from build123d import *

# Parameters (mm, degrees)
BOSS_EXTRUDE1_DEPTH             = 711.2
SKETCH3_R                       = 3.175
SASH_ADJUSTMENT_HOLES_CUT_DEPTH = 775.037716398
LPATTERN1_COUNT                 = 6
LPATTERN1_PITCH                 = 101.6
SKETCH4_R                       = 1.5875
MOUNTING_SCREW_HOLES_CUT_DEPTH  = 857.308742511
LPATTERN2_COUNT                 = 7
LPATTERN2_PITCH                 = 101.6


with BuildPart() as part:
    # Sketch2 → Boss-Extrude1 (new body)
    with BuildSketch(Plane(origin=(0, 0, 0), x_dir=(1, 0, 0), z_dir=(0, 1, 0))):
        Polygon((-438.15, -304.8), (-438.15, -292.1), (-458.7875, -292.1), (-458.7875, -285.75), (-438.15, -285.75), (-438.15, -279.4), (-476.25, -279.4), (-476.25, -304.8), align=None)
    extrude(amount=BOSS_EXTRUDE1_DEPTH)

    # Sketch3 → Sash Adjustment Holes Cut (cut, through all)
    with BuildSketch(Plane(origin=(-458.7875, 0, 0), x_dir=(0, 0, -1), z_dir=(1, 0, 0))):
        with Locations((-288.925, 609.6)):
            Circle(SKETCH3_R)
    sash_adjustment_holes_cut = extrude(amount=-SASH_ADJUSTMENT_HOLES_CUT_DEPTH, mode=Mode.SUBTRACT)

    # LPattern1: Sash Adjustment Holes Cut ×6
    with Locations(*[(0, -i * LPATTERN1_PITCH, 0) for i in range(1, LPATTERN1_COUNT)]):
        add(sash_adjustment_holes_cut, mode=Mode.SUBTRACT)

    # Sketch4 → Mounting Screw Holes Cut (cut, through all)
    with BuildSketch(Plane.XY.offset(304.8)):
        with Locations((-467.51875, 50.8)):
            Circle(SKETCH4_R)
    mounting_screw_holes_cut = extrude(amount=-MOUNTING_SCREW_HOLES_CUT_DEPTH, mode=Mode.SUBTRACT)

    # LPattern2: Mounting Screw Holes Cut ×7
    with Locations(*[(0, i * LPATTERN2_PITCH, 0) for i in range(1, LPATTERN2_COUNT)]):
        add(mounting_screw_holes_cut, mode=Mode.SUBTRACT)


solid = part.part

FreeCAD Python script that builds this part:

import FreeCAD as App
import Part
import Sketcher
from FreeCAD import Vector
Q = App.Units.Quantity


def add_polygon(sketch, points):
    """Adds a closed chain of lines whose ends are joined by coincident constraints."""
    first, n = sketch.GeometryCount, len(points)
    for a, b in zip(points, points[1:] + points[:1]):
        sketch.addGeometry(Part.LineSegment(App.Vector(*a, 0), App.Vector(*b, 0)), False)
    for i in range(n):
        sketch.addConstraint(Sketcher.Constraint("Coincident", first + i, 2, first + (i + 1) % n, 1))

doc = App.newDocument("Part")
body = doc.addObject("PartDesign::Body", "Body")

sketch1 = body.newObject("Sketcher::SketchObject", "Sketch")
sketch1.AttachmentSupport = (doc.getObject("XZ_Plane"), [""])
sketch1.MapMode = "FlatFace"
add_polygon(sketch1, [(-438, 305), (-438, 292), (-459, 292), (-459, 286), (-438, 286), (-438, 279), (-476, 279), (-476, 305)])
sketch1.addConstraint([
    Sketcher.Constraint("Vertical", 0),
    Sketcher.Constraint("Horizontal", 1),
    Sketcher.Constraint("Vertical", 2),
    Sketcher.Constraint("Horizontal", 3),
    Sketcher.Constraint("Vertical", 4),
    Sketcher.Constraint("Horizontal", 5),
    Sketcher.Constraint("Vertical", 6),
    Sketcher.Constraint("Horizontal", 7),
    Sketcher.Constraint("Vertical", 0, 2, 3, 2),
    Sketcher.Constraint("Equal", 2, 4),
    Sketcher.Constraint("DistanceY", 6, 1, 6, 2, Q("1 in")),
    Sketcher.Constraint("DistanceX", 5, 2, 5, 1, Q("1.5 in")),
    Sketcher.Constraint("DistanceY", 0, 2, 0, 1, Q("0.5 in")),
    Sketcher.Constraint("DistanceY", -1, 1, 4, 2, Q("11 in")),
    Sketcher.Constraint("DistanceX", 1, 2, 1, 1, Q("0.8125 in")),
    Sketcher.Constraint("DistanceX", 0, 2, -1, 1, Q("17.25 in")),
])
pad1 = body.newObject("PartDesign::Pad", "Pad")
pad1.Profile = sketch1
pad1.Length = Q("28 in")
pad1.Reversed = True

sketch2 = body.newObject("Sketcher::SketchObject", "Sketch001")
sketch2.AttachmentSupport = (doc.getObject("YZ_Plane"), [""])
sketch2.MapMode = "FlatFace"
sketch2.AttachmentOffset = App.Placement(Vector(0, 0, -18.0625 * 25.4), App.Rotation())
sketch2.addGeometry(Part.Circle(Vector(609.6, 288.9, 0), Vector(0, 0, 1), 3.2), False)
sketch2.addConstraint([
    Sketcher.Constraint("Diameter", 0, Q("0.25 in")),
    Sketcher.Constraint("DistanceX", -1, 1, 0, 3, Q("24 in")),
    Sketcher.Constraint("DistanceY", -1, 1, 0, 3, Q("11.375 in")),
])
pocket1 = body.newObject("PartDesign::Pocket", "Pocket")
pocket1.Profile = sketch2
pocket1.Type = "ThroughAll"
doc.recompute()

linearpattern = body.newObject("PartDesign::LinearPattern", "LinearPattern")
linearpattern.Originals = [pocket1]
linearpattern.Direction = (doc.getObject("Y_Axis"), [""])
linearpattern.Mode = "offset"
linearpattern.Offset = Q("4 in")
linearpattern.Occurrences = 6
linearpattern.Reversed = True
body.Tip = linearpattern

sketch3 = body.newObject("Sketcher::SketchObject", "Sketch002")
sketch3.AttachmentSupport = (doc.getObject("XY_Plane"), [""])
sketch3.MapMode = "FlatFace"
sketch3.AttachmentOffset = App.Placement(Vector(0, 0, 12 * 25.4), App.Rotation())
sketch3.addGeometry(Part.Circle(Vector(-467.5, 50.8, 0), Vector(0, 0, 1), 1.6), False)
sketch3.addConstraint([
    Sketcher.Constraint("Diameter", 0, Q("0.125 in")),
    Sketcher.Constraint("DistanceY", -1, 1, 0, 3, Q("2 in")),
    Sketcher.Constraint("DistanceX", 0, 3, -1, 1, Q("18.40625 in")),
])
pocket2 = body.newObject("PartDesign::Pocket", "Pocket001")
pocket2.Profile = sketch3
pocket2.Type = "ThroughAll"
doc.recompute()

linearpattern2 = body.newObject("PartDesign::LinearPattern", "LinearPattern001")
linearpattern2.Originals = [pocket2]
linearpattern2.Direction = (doc.getObject("Y_Axis"), [""])
linearpattern2.Mode = "offset"
linearpattern2.Offset = Q("4 in")
linearpattern2.Occurrences = 7
body.Tip = linearpattern2

doc.recompute()
